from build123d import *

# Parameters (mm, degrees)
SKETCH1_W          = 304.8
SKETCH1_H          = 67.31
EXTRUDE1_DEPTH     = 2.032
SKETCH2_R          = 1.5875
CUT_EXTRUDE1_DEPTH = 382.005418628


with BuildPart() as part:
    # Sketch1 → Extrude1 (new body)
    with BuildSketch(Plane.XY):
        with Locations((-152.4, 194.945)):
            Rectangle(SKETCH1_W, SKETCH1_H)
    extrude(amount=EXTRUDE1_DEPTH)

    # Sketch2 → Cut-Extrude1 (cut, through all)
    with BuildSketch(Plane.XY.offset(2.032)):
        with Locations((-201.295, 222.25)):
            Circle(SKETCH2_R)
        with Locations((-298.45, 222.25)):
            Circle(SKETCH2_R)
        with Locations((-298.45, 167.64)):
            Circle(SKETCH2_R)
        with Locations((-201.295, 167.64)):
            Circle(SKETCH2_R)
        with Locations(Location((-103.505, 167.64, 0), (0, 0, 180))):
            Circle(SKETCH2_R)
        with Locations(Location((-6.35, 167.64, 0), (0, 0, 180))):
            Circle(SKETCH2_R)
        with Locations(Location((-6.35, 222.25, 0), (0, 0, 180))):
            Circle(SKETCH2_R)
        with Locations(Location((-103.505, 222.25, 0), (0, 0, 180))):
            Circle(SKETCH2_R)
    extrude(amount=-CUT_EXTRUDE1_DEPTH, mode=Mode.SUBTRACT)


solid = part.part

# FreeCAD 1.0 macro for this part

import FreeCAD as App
import Part
import Sketcher
from FreeCAD import Vector
Q = App.Units.Quantity

doc = App.newDocument("Part")
params = doc.addObject("Spreadsheet::Sheet", "Params")
for row, (alias, value) in enumerate([
    ("sketch1_width", "12 in"),
    ("sketch1_height", "2.65 in"),
    ("pad1_length", "0.08 in"),
    ("sketch2_diameter", "0.125 in"),
], start=1):
    params.set(f"A{row}", alias)
    params.set(f"B{row}", "=" + value)
    params.setAlias(f"B{row}", alias)

body = doc.addObject("PartDesign::Body", "Body")

sketch1 = doc.addObject("Sketcher::SketchObject", "Sketch")
body.addObject(sketch1)
sketch1.AttachmentSupport = (doc.XY_Plane, [""])
sketch1.MapMode = "FlatFace"
sketch1.addGeometry([
    Part.LineSegment(Vector(-305, 229, 0), Vector(-305, 161, 0)),
    Part.LineSegment(Vector(-305, 161, 0), Vector(0, 161, 0)),
    Part.LineSegment(Vector(0, 161, 0), Vector(0, 229, 0)),
    Part.LineSegment(Vector(0, 229, 0), Vector(-305, 229, 0)),
], False)
sketch1.addConstraint([
    Sketcher.Constraint("Coincident", 0, 2, 1, 1),
    Sketcher.Constraint("Coincident", 1, 2, 2, 1),
    Sketcher.Constraint("Coincident", 2, 2, 3, 1),
    Sketcher.Constraint("Coincident", 3, 2, 0, 1),
    Sketcher.Constraint("Vertical", 0),
    Sketcher.Constraint("Horizontal", 1),
    Sketcher.Constraint("Vertical", 2),
    Sketcher.Constraint("Horizontal", 3),
    Sketcher.Constraint("PointOnObject", 1, 2, -2),
    Sketcher.Constraint("DistanceX", 1, 1, 1, 2, Q("12 in")),
    Sketcher.Constraint("DistanceY", -1, 1, 2, 2, Q("9 in")),
    Sketcher.Constraint("DistanceY", 0, 2, 0, 1, Q("2.65 in")),
])
sketch1.setExpression("Constraints[9]", "Params.sketch1_width")
sketch1.setExpression("Constraints[11]", "Params.sketch1_height")
pad1 = doc.addObject("PartDesign::Pad", "Pad")
body.addObject(pad1)
pad1.Profile = sketch1
pad1.setExpression("Length", "Params.pad1_length")

sketch2 = doc.addObject("Sketcher::SketchObject", "Sketch001")
body.addObject(sketch2)
sketch2.AttachmentSupport = (doc.XY_Plane, [""])
sketch2.MapMode = "FlatFace"
sketch2.AttachmentOffset = App.Placement(Vector(0, 0, 0.08 * 25.4), App.Rotation())
sketch2.addGeometry([
    Part.Circle(Vector(-201.3, 222.2, 0), Vector(0, 0, 1), 1.6),
    Part.Circle(Vector(-298.4, 222.2, 0), Vector(0, 0, 1), 1.6),
    Part.Circle(Vector(-298.4, 167.6, 0), Vector(0, 0, 1), 1.6),
    Part.Circle(Vector(-201.3, 167.6, 0), Vector(0, 0, 1), 1.6),
    Part.Circle(Vector(-103.5, 167.6, 0), Vector(0, 0, 1), 1.6),
    Part.Circle(Vector(-6.3, 167.6, 0), Vector(0, 0, 1), 1.6),
    Part.Circle(Vector(-6.3, 222.2, 0), Vector(0, 0, 1), 1.6),
    Part.Circle(Vector(-103.5, 222.2, 0), Vector(0, 0, 1), 1.6),
], False)
sketch2.addConstraint([
    Sketcher.Constraint("Equal", 0, 1),
    Sketcher.Constraint("Equal", 1, 2),
    Sketcher.Constraint("Equal", 2, 3),
    Sketcher.Constraint("Equal", 3, 4),
    Sketcher.Constraint("Equal", 4, 5),
    Sketcher.Constraint("Equal", 5, 6),
    Sketcher.Constraint("Equal", 6, 7),
    Sketcher.Constraint("Horizontal", 0, 3, 1, 3),
    Sketcher.Constraint("Horizontal", 2, 3, 3, 3),
    Sketcher.Constraint("Horizontal", 3, 3, 4, 3),
    Sketcher.Constraint("Horizontal", 4, 3, 5, 3),
    Sketcher.Constraint("Horizontal", 1, 3, 6, 3),
    Sketcher.Constraint("Horizontal", 6, 3, 7, 3),
    Sketcher.Constraint("Vertical", 1, 3, 2, 3),
    Sketcher.Constraint("Vertical", 0, 3, 3, 3),
    Sketcher.Constraint("Vertical", 5, 3, 6, 3),
    Sketcher.Constraint("Vertical", 4, 3, 7, 3),
    Sketcher.Constraint("Diameter", 0, Q("0.125 in")),
    Sketcher.Constraint("DistanceY", -1, 1, 2, 3, Q("6.6 in")),
    Sketcher.Constraint("DistanceX", 2, 3, 5, 3, Q("11.5 in")),
    Sketcher.Constraint("DistanceY", -1, 1, 0, 3, Q("8.75 in")),
    Sketcher.Constraint("DistanceX", 1, 3, -1, 1, Q("11.75 in")),
    Sketcher.Constraint("DistanceX", 3, 3, 4, 3, Q("3.85 in")),
    Sketcher.Constraint("DistanceX", 0, 3, -1, 1, Q("7.925 in")),
])
sketch2.setExpression("Constraints[17]", "Params.sketch2_diameter")
pocket1 = doc.addObject("PartDesign::Pocket", "Pocket")
body.addObject(pocket1)
pocket1.Profile = sketch2
pocket1.Type = "ThroughAll"

doc.recompute()
